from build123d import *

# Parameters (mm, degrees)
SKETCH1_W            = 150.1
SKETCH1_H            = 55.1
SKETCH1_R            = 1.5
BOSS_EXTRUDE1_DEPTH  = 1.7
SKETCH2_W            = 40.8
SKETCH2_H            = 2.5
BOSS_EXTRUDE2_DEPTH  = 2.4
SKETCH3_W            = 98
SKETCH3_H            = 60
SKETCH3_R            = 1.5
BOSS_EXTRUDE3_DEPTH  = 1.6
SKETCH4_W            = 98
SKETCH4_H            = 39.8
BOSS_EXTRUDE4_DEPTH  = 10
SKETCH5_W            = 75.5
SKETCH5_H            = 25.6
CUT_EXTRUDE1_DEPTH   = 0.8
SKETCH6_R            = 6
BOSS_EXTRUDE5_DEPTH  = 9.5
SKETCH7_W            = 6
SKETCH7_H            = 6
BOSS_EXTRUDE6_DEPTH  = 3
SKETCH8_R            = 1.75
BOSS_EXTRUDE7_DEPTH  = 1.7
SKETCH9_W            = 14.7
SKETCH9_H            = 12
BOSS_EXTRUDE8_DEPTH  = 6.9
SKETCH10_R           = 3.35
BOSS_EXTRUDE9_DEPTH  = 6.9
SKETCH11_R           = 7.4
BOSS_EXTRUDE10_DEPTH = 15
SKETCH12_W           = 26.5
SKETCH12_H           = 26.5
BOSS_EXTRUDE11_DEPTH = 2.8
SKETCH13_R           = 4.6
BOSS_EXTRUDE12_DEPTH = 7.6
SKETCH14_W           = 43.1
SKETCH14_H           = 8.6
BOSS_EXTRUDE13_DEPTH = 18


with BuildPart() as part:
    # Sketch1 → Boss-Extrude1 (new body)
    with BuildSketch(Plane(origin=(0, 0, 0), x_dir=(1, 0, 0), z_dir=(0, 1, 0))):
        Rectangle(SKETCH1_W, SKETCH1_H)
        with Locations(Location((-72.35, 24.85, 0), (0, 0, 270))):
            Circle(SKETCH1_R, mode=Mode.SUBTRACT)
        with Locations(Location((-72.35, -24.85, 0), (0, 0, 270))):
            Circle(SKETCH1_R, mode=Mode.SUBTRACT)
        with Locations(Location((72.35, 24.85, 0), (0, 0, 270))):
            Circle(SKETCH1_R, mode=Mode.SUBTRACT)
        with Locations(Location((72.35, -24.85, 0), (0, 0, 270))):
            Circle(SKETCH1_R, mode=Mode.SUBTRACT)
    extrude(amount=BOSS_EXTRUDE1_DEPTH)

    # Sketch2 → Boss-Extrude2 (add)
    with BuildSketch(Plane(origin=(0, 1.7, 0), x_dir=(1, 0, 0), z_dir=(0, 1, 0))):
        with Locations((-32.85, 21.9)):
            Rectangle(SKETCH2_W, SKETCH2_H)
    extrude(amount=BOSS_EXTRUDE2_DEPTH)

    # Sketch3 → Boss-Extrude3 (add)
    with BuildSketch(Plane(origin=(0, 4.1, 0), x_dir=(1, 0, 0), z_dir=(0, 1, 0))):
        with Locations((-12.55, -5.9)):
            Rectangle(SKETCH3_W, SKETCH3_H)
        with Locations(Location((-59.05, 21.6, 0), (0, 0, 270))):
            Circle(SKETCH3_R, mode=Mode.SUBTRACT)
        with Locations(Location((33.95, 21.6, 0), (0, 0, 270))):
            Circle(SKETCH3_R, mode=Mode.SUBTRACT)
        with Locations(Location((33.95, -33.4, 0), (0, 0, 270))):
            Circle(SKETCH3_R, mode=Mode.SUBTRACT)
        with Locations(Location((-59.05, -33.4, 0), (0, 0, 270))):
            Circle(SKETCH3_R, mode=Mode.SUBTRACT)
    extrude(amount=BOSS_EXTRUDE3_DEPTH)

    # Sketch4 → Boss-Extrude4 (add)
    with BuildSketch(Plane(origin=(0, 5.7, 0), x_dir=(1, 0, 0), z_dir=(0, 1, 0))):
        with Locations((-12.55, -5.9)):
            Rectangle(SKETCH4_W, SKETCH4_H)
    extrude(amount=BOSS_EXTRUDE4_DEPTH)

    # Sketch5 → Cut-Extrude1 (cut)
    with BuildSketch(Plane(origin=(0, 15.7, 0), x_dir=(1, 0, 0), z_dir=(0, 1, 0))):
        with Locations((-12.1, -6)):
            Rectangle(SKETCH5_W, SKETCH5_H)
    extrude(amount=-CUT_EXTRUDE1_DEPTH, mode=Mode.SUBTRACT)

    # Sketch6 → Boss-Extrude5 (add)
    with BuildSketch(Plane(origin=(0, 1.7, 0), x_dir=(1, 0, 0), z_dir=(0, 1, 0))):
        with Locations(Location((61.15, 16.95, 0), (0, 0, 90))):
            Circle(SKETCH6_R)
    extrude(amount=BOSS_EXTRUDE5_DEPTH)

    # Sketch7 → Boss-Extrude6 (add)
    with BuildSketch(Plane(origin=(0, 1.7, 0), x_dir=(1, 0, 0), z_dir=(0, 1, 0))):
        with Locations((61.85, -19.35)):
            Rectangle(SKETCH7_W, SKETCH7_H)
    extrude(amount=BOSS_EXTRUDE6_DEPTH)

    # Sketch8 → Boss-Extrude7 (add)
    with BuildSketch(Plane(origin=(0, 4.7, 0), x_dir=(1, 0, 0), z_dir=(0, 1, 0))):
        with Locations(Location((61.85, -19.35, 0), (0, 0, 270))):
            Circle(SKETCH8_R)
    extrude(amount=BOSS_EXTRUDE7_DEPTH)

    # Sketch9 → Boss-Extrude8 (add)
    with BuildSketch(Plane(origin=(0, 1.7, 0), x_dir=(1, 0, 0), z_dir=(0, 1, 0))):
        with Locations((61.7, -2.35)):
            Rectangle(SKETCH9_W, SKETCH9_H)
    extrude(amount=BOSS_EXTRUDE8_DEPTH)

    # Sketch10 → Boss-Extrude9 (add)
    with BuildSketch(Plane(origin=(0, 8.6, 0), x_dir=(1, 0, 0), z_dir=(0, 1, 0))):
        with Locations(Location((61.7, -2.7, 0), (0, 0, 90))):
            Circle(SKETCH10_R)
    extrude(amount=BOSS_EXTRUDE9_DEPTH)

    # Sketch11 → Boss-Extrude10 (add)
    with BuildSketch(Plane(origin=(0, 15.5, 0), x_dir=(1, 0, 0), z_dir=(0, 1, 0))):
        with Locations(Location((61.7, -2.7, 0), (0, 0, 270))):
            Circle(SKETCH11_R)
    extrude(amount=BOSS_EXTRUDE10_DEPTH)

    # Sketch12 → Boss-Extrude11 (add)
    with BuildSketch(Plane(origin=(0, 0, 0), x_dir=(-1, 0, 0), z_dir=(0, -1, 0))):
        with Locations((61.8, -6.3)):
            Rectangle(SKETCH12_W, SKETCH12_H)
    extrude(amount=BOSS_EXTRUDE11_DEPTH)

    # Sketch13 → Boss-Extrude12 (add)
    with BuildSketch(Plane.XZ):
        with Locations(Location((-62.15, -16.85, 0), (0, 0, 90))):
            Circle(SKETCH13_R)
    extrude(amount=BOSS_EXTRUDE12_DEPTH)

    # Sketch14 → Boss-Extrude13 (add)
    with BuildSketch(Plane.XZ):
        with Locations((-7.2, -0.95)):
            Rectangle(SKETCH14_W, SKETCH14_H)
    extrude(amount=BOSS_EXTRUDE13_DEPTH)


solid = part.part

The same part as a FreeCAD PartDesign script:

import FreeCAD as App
import Part
import Sketcher
Q = App.Units.Quantity


def add_polygon(sketch, points):
    """Adds a closed chain of lines whose ends are joined by coincident constraints."""
    first, n = sketch.GeometryCount, len(points)
    for a, b in zip(points, points[1:] + points[:1]):
        sketch.addGeometry(Part.LineSegment(App.Vector(*a, 0), App.Vector(*b, 0)), False)
    for i in range(n):
        sketch.addConstraint(Sketcher.Constraint("Coincident", first + i, 2, first + (i + 1) % n, 1))

doc = App.newDocument("Part")
body = doc.addObject("PartDesign::Body", "Body")

# Sketch on XZ plane
sketch1 = doc.addObject("Sketcher::SketchObject", "Sketch")
body.addObject(sketch1)
sketch1.AttachmentSupport = (doc.XZ_Plane, [""])
sketch1.MapMode = "FlatFace"
add_polygon(sketch1, [(-75, -27.6), (-75, 27.6), (75, 27.6), (75, -27.6)])  # lines 0-3
sketch1.addGeometry(Part.Circle(App.Vector(-72.3, 24.9, 0), App.Vector(0, 0, 1), 1.5), False)  # 4
sketch1.addGeometry(Part.Circle(App.Vector(72.3, 24.9, 0), App.Vector(0, 0, 1), 1.5), False)  # 5
sketch1.addGeometry(Part.Circle(App.Vector(-72.3, -24.9, 0), App.Vector(0, 0, 1), 1.5), False)  # 6
sketch1.addGeometry(Part.Circle(App.Vector(72.3, -24.9, 0), App.Vector(0, 0, 1), 1.5), False)  # 7
sketch1.addConstraint(Sketcher.Constraint("Vertical", 0))
sketch1.addConstraint(Sketcher.Constraint("Horizontal", 1))
sketch1.addConstraint(Sketcher.Constraint("Vertical", 2))
sketch1.addConstraint(Sketcher.Constraint("Horizontal", 3))
sketch1.addConstraint(Sketcher.Constraint("Equal", 4, 5))
sketch1.addConstraint(Sketcher.Constraint("Equal", 5, 6))
sketch1.addConstraint(Sketcher.Constraint("Equal", 6, 7))
sketch1.addConstraint(Sketcher.Constraint("Symmetric", 5, 3, 6, 3, -1, 1))
sketch1.addConstraint(Sketcher.Constraint("Symmetric", 4, 3, 7, 3, -1, 1))
sketch1.addConstraint(Sketcher.Constraint("Symmetric", 0, 2, 2, 2, -1, 1))
sketch1.addConstraint(Sketcher.Constraint("Symmetric", 4, 3, 5, 3, -2))
sketch1.addConstraint(Sketcher.Constraint("Diameter", 4, Q("3 mm")))
sketch1.addConstraint(Sketcher.Constraint("DistanceX", 1, 1, 1, 2, Q("150.1 mm")))
sketch1.addConstraint(Sketcher.Constraint("DistanceY", 0, 1, 0, 2, Q("55.1 mm")))
sketch1.addConstraint(Sketcher.Constraint("DistanceX", 4, 3, 5, 3, Q("144.7 mm")))
sketch1.addConstraint(Sketcher.Constraint("DistanceY", 6, 3, 4, 3, Q("49.7 mm")))
pad1 = doc.addObject("PartDesign::Pad", "Pad")
body.addObject(pad1)
pad1.Profile = sketch1
pad1.Length = 1.7
pad1.Reversed = True

# Sketch on XZ plane
sketch2 = doc.addObject("Sketcher::SketchObject", "Sketch001")
body.addObject(sketch2)
sketch2.AttachmentSupport = (doc.XZ_Plane, [""])
sketch2.MapMode = "FlatFace"
sketch2.AttachmentOffset = App.Placement(App.Vector(0, 0, -1.7), App.Rotation())
add_polygon(sketch2, [(-53.2, -23.1), (-53.2, -20.6), (-12.4, -20.6), (-12.4, -23.1)])  # lines 0-3
sketch2.addConstraint(Sketcher.Constraint("Vertical", 0))
sketch2.addConstraint(Sketcher.Constraint("Horizontal", 1))
sketch2.addConstraint(Sketcher.Constraint("Vertical", 2))
sketch2.addConstraint(Sketcher.Constraint("Horizontal", 3))
sketch2.addConstraint(Sketcher.Constraint("DistanceX", 1, 1, 1, 2, Q("40.8 mm")))
sketch2.addConstraint(Sketcher.Constraint("DistanceY", 0, 1, 0, 2, Q("2.5 mm")))
sketch2.addConstraint(Sketcher.Constraint("DistanceX", 0, 2, -1, 1, Q("53.25 mm")))
sketch2.addConstraint(Sketcher.Constraint("DistanceY", 0, 2, -1, 1, Q("20.65 mm")))
pad2 = doc.addObject("PartDesign::Pad", "Pad001")
body.addObject(pad2)
pad2.Profile = sketch2
pad2.Length = 2.4
pad2.Reversed = True

# Sketch on XZ plane
sketch3 = doc.addObject("Sketcher::SketchObject", "Sketch002")
body.addObject(sketch3)
sketch3.AttachmentSupport = (doc.XZ_Plane, [""])
sketch3.MapMode = "FlatFace"
sketch3.AttachmentOffset = App.Placement(App.Vector(0, 0, -4.1), App.Rotation())
add_polygon(sketch3, [(-61.5, -24.1), (-61.5, 35.9), (36.5, 35.9), (36.5, -24.1)])  # lines 0-3
sketch3.addGeometry(Part.Circle(App.Vector(-59, 33.4, 0), App.Vector(0, 0, 1), 1.5), False)  # 4
sketch3.addGeometry(Part.Circle(App.Vector(34, 33.4, 0), App.Vector(0, 0, 1), 1.5), False)  # 5
sketch3.addGeometry(Part.Circle(App.Vector(-59, -21.6, 0), App.Vector(0, 0, 1), 1.5), False)  # 6
sketch3.addGeometry(Part.Circle(App.Vector(34, -21.6, 0), App.Vector(0, 0, 1), 1.5), False)  # 7
sketch3.addConstraint(Sketcher.Constraint("Vertical", 0))
sketch3.addConstraint(Sketcher.Constraint("Horizontal", 1))
sketch3.addConstraint(Sketcher.Constraint("Vertical", 2))
sketch3.addConstraint(Sketcher.Constraint("Horizontal", 3))
sketch3.addConstraint(Sketcher.Constraint("Equal", 4, 5))
sketch3.addConstraint(Sketcher.Constraint("Equal", 5, 6))
sketch3.addConstraint(Sketcher.Constraint("Equal", 6, 7))
sketch3.addConstraint(Sketcher.Constraint("Horizontal", 4, 3, 5, 3))
sketch3.addConstraint(Sketcher.Constraint("Horizontal", 6, 3, 7, 3))
sketch3.addConstraint(Sketcher.Constraint("Vertical", 4, 3, 6, 3))
sketch3.addConstraint(Sketcher.Constraint("Vertical", 5, 3, 7, 3))
sketch3.addConstraint(Sketcher.Constraint("Diameter", 4, Q("3 mm")))
sketch3.addConstraint(Sketcher.Constraint("DistanceX", 1, 1, 1, 2, Q("98 mm")))
sketch3.addConstraint(Sketcher.Constraint("DistanceY", 0, 1, 0, 2, Q("60 mm")))
sketch3.addConstraint(Sketcher.Constraint("DistanceX", 4, 3, 5, 3, Q("93 mm")))
sketch3.addConstraint(Sketcher.Constraint("DistanceY", 6, 3, 4, 3, Q("55 mm")))
sketch3.addConstraint(Sketcher.Constraint("DistanceY", -1, 1, 4, 3, Q("33.4 mm")))
sketch3.addConstraint(Sketcher.Constraint("DistanceY", -1, 1, 0, 2, Q("35.9 mm")))
sketch3.addConstraint(Sketcher.Constraint("DistanceX", 0, 2, 4, 3, Q("2.5 mm")))
sketch3.addConstraint(Sketcher.Constraint("DistanceX", 4, 3, -1, 1, Q("59.05 mm")))
pad3 = doc.addObject("PartDesign::Pad", "Pad002")
body.addObject(pad3)
pad3.Profile = sketch3
pad3.Length = 1.6
pad3.Reversed = True

# Sketch on XZ plane
sketch4 = doc.addObject("Sketcher::SketchObject", "Sketch003")
body.addObject(sketch4)
sketch4.AttachmentSupport = (doc.XZ_Plane, [""])
sketch4.MapMode = "FlatFace"
sketch4.AttachmentOffset = App.Placement(App.Vector(0, 0, -5.7), App.Rotation())
add_polygon(sketch4, [(-62, -14), (-62, 26), (36, 26), (36, -14)])  # lines 0-3
sketch4.addConstraint(Sketcher.Constraint("Vertical", 0))
sketch4.addConstraint(Sketcher.Constraint("Horizontal", 1))
sketch4.addConstraint(Sketcher.Constraint("Vertical", 2))
sketch4.addConstraint(Sketcher.Constraint("Horizontal", 3))
sketch4.addConstraint(Sketcher.Constraint("DistanceX", 1, 1, 1, 2, Q("98 mm")))
sketch4.addConstraint(Sketcher.Constraint("DistanceY", 0, 1, 0, 2, Q("39.8 mm")))
sketch4.addConstraint(Sketcher.Constraint("DistanceY", 2, 2, -1, 1, Q("14 mm")))
sketch4.addConstraint(Sketcher.Constraint("DistanceX", 0, 2, -1, 1, Q("61.55 mm")))
pad4 = doc.addObject("PartDesign::Pad", "Pad003")
body.addObject(pad4)
pad4.Profile = sketch4
pad4.Length = 10
pad4.Reversed = True

# Sketch on XZ plane
sketch5 = doc.addObject("Sketcher::SketchObject", "Sketch004")
body.addObject(sketch5)
sketch5.AttachmentSupport = (doc.XZ_Plane, [""])
sketch5.MapMode = "FlatFace"
sketch5.AttachmentOffset = App.Placement(App.Vector(0, 0, -15.7), App.Rotation())
add_polygon(sketch5, [(-50, -7), (-50, 19), (26, 19), (26, -7)])  # lines 0-3
sketch5.addConstraint(Sketcher.Constraint("Vertical", 0))
sketch5.addConstraint(Sketcher.Constraint("Horizontal", 1))
sketch5.addConstraint(Sketcher.Constraint("Vertical", 2))
sketch5.addConstraint(Sketcher.Constraint("Horizontal", 3))
sketch5.addConstraint(Sketcher.Constraint("DistanceX", 1, 1, 1, 2, Q("75.5 mm")))
sketch5.addConstraint(Sketcher.Constraint("DistanceY", 0, 1, 0, 2, Q("25.6 mm")))
sketch5.addConstraint(Sketcher.Constraint("DistanceY", -1, 1, 0, 2, Q("18.8 mm")))
sketch5.addConstraint(Sketcher.Constraint("DistanceX", 0, 2, -1, 1, Q("49.85 mm")))
pocket1 = doc.addObject("PartDesign::Pocket", "Pocket")
body.addObject(pocket1)
pocket1.Profile = sketch5
pocket1.Length = 0.8
pocket1.Reversed = True

# Sketch on XZ plane
sketch6 = doc.addObject("Sketcher::SketchObject", "Sketch005")
body.addObject(sketch6)
sketch6.AttachmentSupport = (doc.XZ_Plane, [""])
sketch6.MapMode = "FlatFace"
sketch6.AttachmentOffset = App.Placement(App.Vector(0, 0, -1.7), App.Rotation())
sketch6.addGeometry(Part.Circle(App.Vector(61, -17, 0), App.Vector(0, 0, 1), 6), False)
sketch6.addConstraint(Sketcher.Constraint("Diameter", 0, Q("12 mm")))
sketch6.addConstraint(Sketcher.Constraint("DistanceX", -1, 1, 0, 3, Q("61.15 mm")))
sketch6.addConstraint(Sketcher.Constraint("DistanceY", 0, 3, -1, 1, Q("16.95 mm")))
pad5 = doc.addObject("PartDesign::Pad", "Pad004")
body.addObject(pad5)
pad5.Profile = sketch6
pad5.Length = 9.5
pad5.Reversed = True

# Sketch on XZ plane
sketch7 = doc.addObject("Sketcher::SketchObject", "Sketch006")
body.addObject(sketch7)
sketch7.AttachmentSupport = (doc.XZ_Plane, [""])
sketch7.MapMode = "FlatFace"
sketch7.AttachmentOffset = App.Placement(App.Vector(0, 0, -1.7), App.Rotation())
add_polygon(sketch7, [(59, 16), (59, 22), (65, 22), (65, 16)])  # lines 0-3
sketch7.addConstraint(Sketcher.Constraint("Vertical", 0))
sketch7.addConstraint(Sketcher.Constraint("Horizontal", 1))
sketch7.addConstraint(Sketcher.Constraint("Vertical", 2))
sketch7.addConstraint(Sketcher.Constraint("Horizontal", 3))
sketch7.addConstraint(Sketcher.Constraint("Equal", 3, 0))
sketch7.addConstraint(Sketcher.Constraint("DistanceX", 1, 1, 1, 2, Q("6 mm")))
sketch7.addConstraint(Sketcher.Constraint("DistanceX", -1, 1, 0, 2, Q("58.85 mm")))
sketch7.addConstraint(Sketcher.Constraint("DistanceY", -1, 1, 0, 2, Q("22.35 mm")))
pad6 = doc.addObject("PartDesign::Pad", "Pad005")
body.addObject(pad6)
pad6.Profile = sketch7
pad6.Length = 3
pad6.Reversed = True

# Sketch on XZ plane
sketch8 = doc.addObject("Sketcher::SketchObject", "Sketch007")
body.addObject(sketch8)
sketch8.AttachmentSupport = (doc.XZ_Plane, [""])
sketch8.MapMode = "FlatFace"
sketch8.AttachmentOffset = App.Placement(App.Vector(0, 0, -4.7), App.Rotation())
sketch8.addGeometry(Part.Circle(App.Vector(61.9, 19.4, 0), App.Vector(0, 0, 1), 1.8), False)
sketch8.addConstraint(Sketcher.Constraint("Diameter", 0, Q("3.5 mm")))
sketch8.addConstraint(Sketcher.Constraint("DistanceX", -1, 1, 0, 3, Q("61.85 mm")))
sketch8.addConstraint(Sketcher.Constraint("DistanceY", -1, 1, 0, 3, Q("19.35 mm")))
pad7 = doc.addObject("PartDesign::Pad", "Pad006")
body.addObject(pad7)
pad7.Profile = sketch8
pad7.Length = 1.7
pad7.Reversed = True

# Sketch on XZ plane
sketch9 = doc.addObject("Sketcher::SketchObject", "Sketch008")
body.addObject(sketch9)
sketch9.AttachmentSupport = (doc.XZ_Plane, [""])
sketch9.MapMode = "FlatFace"
sketch9.AttachmentOffset = App.Placement(App.Vector(0, 0, -1.7), App.Rotation())
add_polygon(sketch9, [(54, -4), (54, 8), (69, 8), (69, -4)])  # lines 0-3
sketch9.addConstraint(Sketcher.Constraint("Vertical", 0))
sketch9.addConstraint(Sketcher.Constraint("Horizontal", 1))
sketch9.addConstraint(Sketcher.Constraint("Vertical", 2))
sketch9.addConstraint(Sketcher.Constraint("Horizontal", 3))
sketch9.addConstraint(Sketcher.Constraint("DistanceY", 0, 1, 0, 2, Q("12 mm")))
sketch9.addConstraint(Sketcher.Constraint("DistanceX", 1, 1, 1, 2, Q("14.7 mm")))
sketch9.addConstraint(Sketcher.Constraint("DistanceX", -1, 1, 0, 2, Q("54.35 mm")))
sketch9.addConstraint(Sketcher.Constraint("DistanceY", -1, 1, 0, 2, Q("8.35 mm")))
pad8 = doc.addObject("PartDesign::Pad", "Pad007")
body.addObject(pad8)
pad8.Profile = sketch9
pad8.Length = 6.9
pad8.Reversed = True

# Sketch on XZ plane
sketch10 = doc.addObject("Sketcher::SketchObject", "Sketch009")
body.addObject(sketch10)
sketch10.AttachmentSupport = (doc.XZ_Plane, [""])
sketch10.MapMode = "FlatFace"
sketch10.AttachmentOffset = App.Placement(App.Vector(0, 0, -8.6), App.Rotation())
sketch10.addGeometry(Part.Circle(App.Vector(61.7, 2.7, 0), App.Vector(0, 0, 1), 3.4), False)
sketch10.addConstraint(Sketcher.Constraint("Diameter", 0, Q("6.7 mm")))
sketch10.addConstraint(Sketcher.Constraint("DistanceX", -1, 1, 0, 3, Q("61.7 mm")))
sketch10.addConstraint(Sketcher.Constraint("DistanceY", -1, 1, 0, 3, Q("2.7 mm")))
pad9 = doc.addObject("PartDesign::Pad", "Pad008")
body.addObject(pad9)
pad9.Profile = sketch10
pad9.Length = 6.9
pad9.Reversed = True

# Sketch on XZ plane
sketch11 = doc.addObject("Sketcher::SketchObject", "Sketch010")
body.addObject(sketch11)
sketch11.AttachmentSupport = (doc.XZ_Plane, [""])
sketch11.MapMode = "FlatFace"
sketch11.AttachmentOffset = App.Placement(App.Vector(0, 0, -15.5), App.Rotation())
sketch11.addGeometry(Part.Circle(App.Vector(62, 3, 0), App.Vector(0, 0, 1), 7), False)
sketch11.addConstraint(Sketcher.Constraint("Diameter", 0, Q("14.8 mm")))
sketch11.addConstraint(Sketcher.Constraint("DistanceX", -1, 1, 0, 3, Q("61.7 mm")))
sketch11.addConstraint(Sketcher.Constraint("DistanceY", -1, 1, 0, 3, Q("2.7 mm")))
pad10 = doc.addObject("PartDesign::Pad", "Pad009")
body.addObject(pad10)
pad10.Profile = sketch11
pad10.Length = 15
pad10.Reversed = True

# Sketch on XZ plane
sketch12 = doc.addObject("Sketcher::SketchObject", "Sketch011")
body.addObject(sketch12)
sketch12.AttachmentSupport = (doc.XZ_Plane, [""])
sketch12.MapMode = "FlatFace"
add_polygon(sketch12, [(-49, -7), (-49, 20), (-75, 20), (-75, -7)])  # lines 0-3
sketch12.addConstraint(Sketcher.Constraint("Vertical", 0))
sketch12.addConstraint(Sketcher.Constraint("Horizontal", 1))
sketch12.addConstraint(Sketcher.Constraint("Vertical", 2))
sketch12.addConstraint(Sketcher.Constraint("Horizontal", 3))
sketch12.addConstraint(Sketcher.Constraint("Equal", 3, 0))
sketch12.addConstraint(Sketcher.Constraint("DistanceX", 1, 2, 1, 1, Q("26.5 mm")))
sketch12.addConstraint(Sketcher.Constraint("DistanceX", 0, 2, -1, 1, Q("48.55 mm")))
sketch12.addConstraint(Sketcher.Constraint("DistanceY", -1, 1, 0, 2, Q("19.55 mm")))
pad11 = doc.addObject("PartDesign::Pad", "Pad010")
body.addObject(pad11)
pad11.Profile = sketch12
pad11.Length = 2.8

# Sketch on XZ plane
sketch13 = doc.addObject("Sketcher::SketchObject", "Sketch012")
body.addObject(sketch13)
sketch13.AttachmentSupport = (doc.XZ_Plane, [""])
sketch13.MapMode = "FlatFace"
sketch13.addGeometry(Part.Circle(App.Vector(-62.1, -16.9, 0), App.Vector(0, 0, 1), 4.6), False)
sketch13.addConstraint(Sketcher.Constraint("Diameter", 0, Q("9.2 mm")))
sketch13.addConstraint(Sketcher.Constraint("DistanceX", 0, 3, -1, 1, Q("62.15 mm")))
sketch13.addConstraint(Sketcher.Constraint("DistanceY", 0, 3, -1, 1, Q("16.85 mm")))
pad12 = doc.addObject("PartDesign::Pad", "Pad011")
body.addObject(pad12)
pad12.Profile = sketch13
pad12.Length = 7.6

# Sketch on XZ plane
sketch14 = doc.addObject("Sketcher::SketchObject", "Sketch013")
body.addObject(sketch14)
sketch14.AttachmentSupport = (doc.XZ_Plane, [""])
sketch14.MapMode = "FlatFace"
add_polygon(sketch14, [(-29, 3), (-29, -5), (14, -5), (14, 3)])  # lines 0-3
sketch14.addConstraint(Sketcher.Constraint("Vertical", 0))
sketch14.addConstraint(Sketcher.Constraint("Horizontal", 1))
sketch14.addConstraint(Sketcher.Constraint("Vertical", 2))
sketch14.addConstraint(Sketcher.Constraint("Horizontal", 3))
sketch14.addConstraint(Sketcher.Constraint("DistanceX", 1, 1, 1, 2, Q("43.1 mm")))
sketch14.addConstraint(Sketcher.Constraint("DistanceY", 0, 2, 0, 1, Q("8.6 mm")))
sketch14.addConstraint(Sketcher.Constraint("DistanceX", 0, 2, -1, 1, Q("28.75 mm")))
sketch14.addConstraint(Sketcher.Constraint("DistanceY", 0, 2, -1, 1, Q("5.25 mm")))
pad13 = doc.addObject("PartDesign::Pad", "Pad012")
body.addObject(pad13)
pad13.Profile = sketch14
pad13.Length = 18

doc.recompute()
